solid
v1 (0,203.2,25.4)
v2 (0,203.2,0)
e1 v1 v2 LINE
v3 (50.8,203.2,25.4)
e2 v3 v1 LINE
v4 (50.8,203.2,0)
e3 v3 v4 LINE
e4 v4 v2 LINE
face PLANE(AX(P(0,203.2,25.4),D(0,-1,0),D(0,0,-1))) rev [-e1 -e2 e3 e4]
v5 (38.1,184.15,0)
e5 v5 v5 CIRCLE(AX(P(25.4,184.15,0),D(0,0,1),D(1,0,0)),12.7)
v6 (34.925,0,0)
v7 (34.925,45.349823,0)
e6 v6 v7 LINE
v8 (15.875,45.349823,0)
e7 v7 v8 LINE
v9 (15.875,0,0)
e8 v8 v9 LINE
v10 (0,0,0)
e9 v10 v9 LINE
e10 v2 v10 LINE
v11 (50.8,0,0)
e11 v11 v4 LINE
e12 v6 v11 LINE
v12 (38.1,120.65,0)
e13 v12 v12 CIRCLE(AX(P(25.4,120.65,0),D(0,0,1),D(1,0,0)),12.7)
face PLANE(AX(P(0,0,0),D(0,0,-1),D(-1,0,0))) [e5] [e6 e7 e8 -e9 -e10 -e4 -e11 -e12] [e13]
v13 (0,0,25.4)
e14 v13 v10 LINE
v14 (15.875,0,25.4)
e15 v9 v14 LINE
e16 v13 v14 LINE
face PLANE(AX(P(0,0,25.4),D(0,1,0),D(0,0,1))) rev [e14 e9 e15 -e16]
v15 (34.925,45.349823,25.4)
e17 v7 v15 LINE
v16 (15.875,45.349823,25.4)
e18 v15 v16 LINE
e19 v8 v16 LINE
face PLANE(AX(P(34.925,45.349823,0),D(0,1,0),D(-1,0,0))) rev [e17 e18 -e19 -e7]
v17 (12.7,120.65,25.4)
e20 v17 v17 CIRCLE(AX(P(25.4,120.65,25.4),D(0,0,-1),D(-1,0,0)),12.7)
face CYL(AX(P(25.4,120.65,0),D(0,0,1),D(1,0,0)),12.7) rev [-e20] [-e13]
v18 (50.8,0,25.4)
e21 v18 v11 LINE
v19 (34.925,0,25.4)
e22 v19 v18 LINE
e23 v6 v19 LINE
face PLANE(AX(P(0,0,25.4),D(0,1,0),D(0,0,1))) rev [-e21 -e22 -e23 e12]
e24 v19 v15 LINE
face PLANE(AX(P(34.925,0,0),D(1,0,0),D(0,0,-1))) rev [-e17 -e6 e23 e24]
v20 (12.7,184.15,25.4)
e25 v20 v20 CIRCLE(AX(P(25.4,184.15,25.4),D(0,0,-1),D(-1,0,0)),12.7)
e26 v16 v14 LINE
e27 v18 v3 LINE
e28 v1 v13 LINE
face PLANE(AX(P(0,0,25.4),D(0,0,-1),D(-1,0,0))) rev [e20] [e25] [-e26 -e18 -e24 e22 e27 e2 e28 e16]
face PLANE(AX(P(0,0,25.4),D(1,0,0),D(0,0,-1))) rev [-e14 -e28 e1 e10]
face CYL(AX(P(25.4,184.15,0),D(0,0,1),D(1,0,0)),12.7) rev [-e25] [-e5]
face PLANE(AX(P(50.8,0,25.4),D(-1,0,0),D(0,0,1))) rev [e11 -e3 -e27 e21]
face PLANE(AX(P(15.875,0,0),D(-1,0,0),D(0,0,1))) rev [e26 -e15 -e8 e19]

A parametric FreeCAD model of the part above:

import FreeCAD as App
import Part
import Sketcher
from FreeCAD import Vector
Q = App.Units.Quantity

doc = App.newDocument("Part")
body = doc.addObject("PartDesign::Body", "Body")

sketch1 = doc.addObject("Sketcher::SketchObject", "Sketch")
body.addObject(sketch1)
sketch1.AttachmentSupport = (doc.XY_Plane, [""])
sketch1.MapMode = "FlatFace"
sketch1.addGeometry([
    Part.LineSegment(Vector(0, 203, 0), Vector(0, 0, 0)),
    Part.LineSegment(Vector(0, 0, 0), Vector(51, 0, 0)),
    Part.LineSegment(Vector(51, 0, 0), Vector(51, 203, 0)),
    Part.LineSegment(Vector(51, 203, 0), Vector(0, 203, 0)),
], False)
sketch1.addConstraint([
    Sketcher.Constraint("Coincident", 0, 2, 1, 1),
    Sketcher.Constraint("Coincident", 1, 2, 2, 1),
    Sketcher.Constraint("Coincident", 2, 2, 3, 1),
    Sketcher.Constraint("Coincident", 3, 2, 0, 1),
    Sketcher.Constraint("Vertical", 0),
    Sketcher.Constraint("Horizontal", 1),
    Sketcher.Constraint("Vertical", 2),
    Sketcher.Constraint("Horizontal", 3),
    Sketcher.Constraint("Coincident", 0, 2, -1, 1),
    Sketcher.Constraint("DistanceX", 1, 1, 1, 2, Q("2 in")),
    Sketcher.Constraint("DistanceY", 0, 2, 0, 1, Q("8 in")),
])
pad1 = doc.addObject("PartDesign::Pad", "Pad")
body.addObject(pad1)
pad1.Profile = sketch1
pad1.Length = Q("1 in")

sketch2 = doc.addObject("Sketcher::SketchObject", "Sketch001")
body.addObject(sketch2)
sketch2.AttachmentSupport = (doc.XY_Plane, [""])
sketch2.MapMode = "FlatFace"
sketch2.AttachmentOffset = App.Placement(Vector(0, 0, 1 * 25.4), App.Rotation())
sketch2.addGeometry([
    Part.Circle(Vector(25, 184, 0), Vector(0, 0, 1), 13),
    Part.Circle(Vector(25, 121, 0), Vector(0, 0, 1), 13),
], False)
sketch2.addConstraint([
    Sketcher.Constraint("Equal", 0, 1),
    Sketcher.Constraint("Vertical", 0, 3, 1, 3),
    Sketcher.Constraint("Diameter", 0, Q("1 in")),
    Sketcher.Constraint("DistanceX", -1, 1, 0, 3, Q("1 in")),
    Sketcher.Constraint("DistanceY", 1, 3, 0, 3, Q("2.5 in")),
    Sketcher.Constraint("DistanceY", -1, 1, 0, 3, Q("7.25 in")),
])
pocket1 = doc.addObject("PartDesign::Pocket", "Pocket")
body.addObject(pocket1)
pocket1.Profile = sketch2
pocket1.Type = "ThroughAll"
pocket1.Midplane = True

sketch3 = doc.addObject("Sketcher::SketchObject", "Sketch002")
body.addObject(sketch3)
sketch3.AttachmentSupport = (doc.XY_Plane, [""])
sketch3.MapMode = "FlatFace"
sketch3.AttachmentOffset = App.Placement(Vector(0, 0, 1 * 25.4), App.Rotation())
sketch3.addGeometry(Part.Circle(Vector(25, 25, 0), Vector(0, 0, 1), 6), False)
sketch3.addConstraint([
    Sketcher.Constraint("Diameter", 0, Q("0.5 in")),
    Sketcher.Constraint("DistanceX", -1, 1, 0, 3, Q("1 in")),
    Sketcher.Constraint("DistanceY", -1, 1, 0, 3, Q("1 in")),
])
pocket2 = doc.addObject("PartDesign::Pocket", "Pocket001")
body.addObject(pocket2)
pocket2.Profile = sketch3
pocket2.Type = "ThroughAll"

sketch4 = doc.addObject("Sketcher::SketchObject", "Sketch003")
body.addObject(sketch4)
sketch4.AttachmentSupport = (doc.XY_Plane, [""])
sketch4.MapMode = "FlatFace"
sketch4.AttachmentOffset = App.Placement(Vector(0, 0, 1 * 25.4), App.Rotation())
sketch4.addGeometry([
    Part.LineSegment(Vector(16, 45, 0), Vector(16, 0, 0)),
    Part.LineSegment(Vector(16, 0, 0), Vector(35, 0, 0)),
    Part.LineSegment(Vector(35, 0, 0), Vector(35, 45, 0)),
    Part.LineSegment(Vector(35, 45, 0), Vector(16, 45, 0)),
], False)
sketch4.addConstraint([
    Sketcher.Constraint("Coincident", 0, 2, 1, 1),
    Sketcher.Constraint("Coincident", 1, 2, 2, 1),
    Sketcher.Constraint("Coincident", 2, 2, 3, 1),
    Sketcher.Constraint("Coincident", 3, 2, 0, 1),
    Sketcher.Constraint("Vertical", 0),
    Sketcher.Constraint("Horizontal", 1),
    Sketcher.Constraint("Vertical", 2),
    Sketcher.Constraint("Horizontal", 3),
    Sketcher.Constraint("PointOnObject", 0, 2, -1),
    Sketcher.Constraint("DistanceX", 1, 1, 1, 2, Q("0.75 in")),
    Sketcher.Constraint("DistanceX", -1, 1, 0, 2, Q("0.625 in")),
    Sketcher.Constraint("DistanceY", 0, 2, 0, 1, 45.349823),
])
pocket3 = doc.addObject("PartDesign::Pocket", "Pocket002")
body.addObject(pocket3)
pocket3.Profile = sketch4
pocket3.Type = "ThroughAll"

doc.recompute()
